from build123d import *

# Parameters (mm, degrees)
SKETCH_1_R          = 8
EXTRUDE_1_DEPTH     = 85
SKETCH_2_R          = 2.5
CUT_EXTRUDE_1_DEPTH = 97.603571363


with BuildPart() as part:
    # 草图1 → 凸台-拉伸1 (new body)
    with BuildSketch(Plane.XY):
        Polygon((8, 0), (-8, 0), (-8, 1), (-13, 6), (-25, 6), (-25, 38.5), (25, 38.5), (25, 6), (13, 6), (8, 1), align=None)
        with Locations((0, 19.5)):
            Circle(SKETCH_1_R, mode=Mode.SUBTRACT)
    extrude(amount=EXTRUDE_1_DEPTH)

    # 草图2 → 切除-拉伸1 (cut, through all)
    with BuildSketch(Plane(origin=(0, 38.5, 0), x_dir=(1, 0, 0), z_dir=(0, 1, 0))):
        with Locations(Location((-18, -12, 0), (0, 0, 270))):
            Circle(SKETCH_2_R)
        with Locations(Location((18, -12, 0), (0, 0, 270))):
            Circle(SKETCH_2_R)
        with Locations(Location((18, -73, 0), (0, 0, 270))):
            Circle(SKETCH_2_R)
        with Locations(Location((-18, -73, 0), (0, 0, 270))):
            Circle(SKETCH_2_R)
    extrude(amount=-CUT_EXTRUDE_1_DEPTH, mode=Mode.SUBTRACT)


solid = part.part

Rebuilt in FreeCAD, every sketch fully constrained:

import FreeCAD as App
import Part
import Sketcher


def add_polygon(sketch, points):
    """Adds a closed chain of lines whose ends are joined by coincident constraints."""
    first, n = sketch.GeometryCount, len(points)
    for a, b in zip(points, points[1:] + points[:1]):
        sketch.addGeometry(Part.LineSegment(App.Vector(*a, 0), App.Vector(*b, 0)), False)
    for i in range(n):
        sketch.addConstraint(Sketcher.Constraint("Coincident", first + i, 2, first + (i + 1) % n, 1))

doc = App.newDocument("Part")
body = doc.addObject("PartDesign::Body", "Body")

# Sketch on XY plane
sketch1 = doc.addObject("Sketcher::SketchObject", "Sketch")
body.addObject(sketch1)
sketch1.AttachmentSupport = (doc.XY_Plane, [""])
sketch1.MapMode = "FlatFace"
add_polygon(sketch1, [(-8, 0), (8, 0), (8, 1), (13, 6), (25, 6), (25, 38.5), (-25, 38.5), (-25, 6), (-13, 6), (-8, 1)])  # lines 0-9
sketch1.addGeometry(Part.Circle(App.Vector(0, 19.5, 0), App.Vector(0, 0, 1), 8), False)  # 10
sketch1.addConstraint(Sketcher.Constraint("Horizontal", 0))
sketch1.addConstraint(Sketcher.Constraint("Vertical", 1))
sketch1.addConstraint(Sketcher.Constraint("Horizontal", 3))
sketch1.addConstraint(Sketcher.Constraint("Vertical", 4))
sketch1.addConstraint(Sketcher.Constraint("Horizontal", 5))
sketch1.addConstraint(Sketcher.Constraint("Vertical", 6))
sketch1.addConstraint(Sketcher.Constraint("Horizontal", 7))
sketch1.addConstraint(Sketcher.Constraint("Vertical", 9))
sketch1.addConstraint(Sketcher.Constraint("Symmetric", 0, 2, 9, 2, -1, 1))
sketch1.addConstraint(Sketcher.Constraint("Symmetric", 3, 2, 6, 2, -2))
sketch1.addConstraint(Sketcher.Constraint("PointOnObject", 10, 3, -2))
sketch1.addConstraint(Sketcher.Constraint("Perpendicular", 2, 8))
sketch1.addConstraint(Sketcher.Constraint("Horizontal", 1, 2, 8, 2))
sketch1.addConstraint(Sketcher.Constraint("Equal", 3, 7))
sketch1.addConstraint(Sketcher.Constraint("Diameter", 10, 16.0))
sketch1.addConstraint(Sketcher.Constraint("DistanceX", 0, 1, 0, 2, 16.0))
sketch1.addConstraint(Sketcher.Constraint("DistanceX", 3, 1, 3, 2, 12.0))
sketch1.addConstraint(Sketcher.Constraint("DistanceX", 5, 2, 5, 1, 50.0))
sketch1.addConstraint(Sketcher.Constraint("DistanceY", 1, 1, 1, 2, 1.0))
sketch1.addConstraint(Sketcher.Constraint("DistanceY", 4, 1, 4, 2, 32.5))
sketch1.addConstraint(Sketcher.Constraint("DistanceY", 10, 3, 4, 2, 19.0))
pad1 = doc.addObject("PartDesign::Pad", "Pad")
body.addObject(pad1)
pad1.Profile = sketch1
pad1.Length = 85

# Sketch on XZ plane
sketch2 = doc.addObject("Sketcher::SketchObject", "Sketch001")
body.addObject(sketch2)
sketch2.AttachmentSupport = (doc.XZ_Plane, [""])
sketch2.MapMode = "FlatFace"
sketch2.AttachmentOffset = App.Placement(App.Vector(0, 0, -38.5), App.Rotation())
sketch2.addGeometry(Part.Circle(App.Vector(-18, 12, 0), App.Vector(0, 0, 1), 2.5), False)
sketch2.addGeometry(Part.Circle(App.Vector(18, 12, 0), App.Vector(0, 0, 1), 2.5), False)
sketch2.addGeometry(Part.Circle(App.Vector(18, 73, 0), App.Vector(0, 0, 1), 2.5), False)
sketch2.addGeometry(Part.Circle(App.Vector(-18, 73, 0), App.Vector(0, 0, 1), 2.5), False)
sketch2.addConstraint(Sketcher.Constraint("Equal", 0, 1))
sketch2.addConstraint(Sketcher.Constraint("Equal", 1, 2))
sketch2.addConstraint(Sketcher.Constraint("Equal", 2, 3))
sketch2.addConstraint(Sketcher.Constraint("Symmetric", 0, 3, 1, 3, -2))
sketch2.addConstraint(Sketcher.Constraint("Symmetric", 2, 3, 3, 3, -2))
sketch2.addConstraint(Sketcher.Constraint("Vertical", 1, 3, 2, 3))
sketch2.addConstraint(Sketcher.Constraint("Diameter", 0, 5.0))
sketch2.addConstraint(Sketcher.Constraint("DistanceX", 0, 3, -1, 1, 18.0))
sketch2.addConstraint(Sketcher.Constraint("DistanceY", -1, 1, 0, 3, 12.0))
sketch2.addConstraint(Sketcher.Constraint("DistanceY", -1, 1, 2, 3, 73.0))
pocket1 = doc.addObject("PartDesign::Pocket", "Pocket")
body.addObject(pocket1)
pocket1.Profile = sketch2
pocket1.Type = "ThroughAll"
pocket1.Reversed = True

doc.recompute()
